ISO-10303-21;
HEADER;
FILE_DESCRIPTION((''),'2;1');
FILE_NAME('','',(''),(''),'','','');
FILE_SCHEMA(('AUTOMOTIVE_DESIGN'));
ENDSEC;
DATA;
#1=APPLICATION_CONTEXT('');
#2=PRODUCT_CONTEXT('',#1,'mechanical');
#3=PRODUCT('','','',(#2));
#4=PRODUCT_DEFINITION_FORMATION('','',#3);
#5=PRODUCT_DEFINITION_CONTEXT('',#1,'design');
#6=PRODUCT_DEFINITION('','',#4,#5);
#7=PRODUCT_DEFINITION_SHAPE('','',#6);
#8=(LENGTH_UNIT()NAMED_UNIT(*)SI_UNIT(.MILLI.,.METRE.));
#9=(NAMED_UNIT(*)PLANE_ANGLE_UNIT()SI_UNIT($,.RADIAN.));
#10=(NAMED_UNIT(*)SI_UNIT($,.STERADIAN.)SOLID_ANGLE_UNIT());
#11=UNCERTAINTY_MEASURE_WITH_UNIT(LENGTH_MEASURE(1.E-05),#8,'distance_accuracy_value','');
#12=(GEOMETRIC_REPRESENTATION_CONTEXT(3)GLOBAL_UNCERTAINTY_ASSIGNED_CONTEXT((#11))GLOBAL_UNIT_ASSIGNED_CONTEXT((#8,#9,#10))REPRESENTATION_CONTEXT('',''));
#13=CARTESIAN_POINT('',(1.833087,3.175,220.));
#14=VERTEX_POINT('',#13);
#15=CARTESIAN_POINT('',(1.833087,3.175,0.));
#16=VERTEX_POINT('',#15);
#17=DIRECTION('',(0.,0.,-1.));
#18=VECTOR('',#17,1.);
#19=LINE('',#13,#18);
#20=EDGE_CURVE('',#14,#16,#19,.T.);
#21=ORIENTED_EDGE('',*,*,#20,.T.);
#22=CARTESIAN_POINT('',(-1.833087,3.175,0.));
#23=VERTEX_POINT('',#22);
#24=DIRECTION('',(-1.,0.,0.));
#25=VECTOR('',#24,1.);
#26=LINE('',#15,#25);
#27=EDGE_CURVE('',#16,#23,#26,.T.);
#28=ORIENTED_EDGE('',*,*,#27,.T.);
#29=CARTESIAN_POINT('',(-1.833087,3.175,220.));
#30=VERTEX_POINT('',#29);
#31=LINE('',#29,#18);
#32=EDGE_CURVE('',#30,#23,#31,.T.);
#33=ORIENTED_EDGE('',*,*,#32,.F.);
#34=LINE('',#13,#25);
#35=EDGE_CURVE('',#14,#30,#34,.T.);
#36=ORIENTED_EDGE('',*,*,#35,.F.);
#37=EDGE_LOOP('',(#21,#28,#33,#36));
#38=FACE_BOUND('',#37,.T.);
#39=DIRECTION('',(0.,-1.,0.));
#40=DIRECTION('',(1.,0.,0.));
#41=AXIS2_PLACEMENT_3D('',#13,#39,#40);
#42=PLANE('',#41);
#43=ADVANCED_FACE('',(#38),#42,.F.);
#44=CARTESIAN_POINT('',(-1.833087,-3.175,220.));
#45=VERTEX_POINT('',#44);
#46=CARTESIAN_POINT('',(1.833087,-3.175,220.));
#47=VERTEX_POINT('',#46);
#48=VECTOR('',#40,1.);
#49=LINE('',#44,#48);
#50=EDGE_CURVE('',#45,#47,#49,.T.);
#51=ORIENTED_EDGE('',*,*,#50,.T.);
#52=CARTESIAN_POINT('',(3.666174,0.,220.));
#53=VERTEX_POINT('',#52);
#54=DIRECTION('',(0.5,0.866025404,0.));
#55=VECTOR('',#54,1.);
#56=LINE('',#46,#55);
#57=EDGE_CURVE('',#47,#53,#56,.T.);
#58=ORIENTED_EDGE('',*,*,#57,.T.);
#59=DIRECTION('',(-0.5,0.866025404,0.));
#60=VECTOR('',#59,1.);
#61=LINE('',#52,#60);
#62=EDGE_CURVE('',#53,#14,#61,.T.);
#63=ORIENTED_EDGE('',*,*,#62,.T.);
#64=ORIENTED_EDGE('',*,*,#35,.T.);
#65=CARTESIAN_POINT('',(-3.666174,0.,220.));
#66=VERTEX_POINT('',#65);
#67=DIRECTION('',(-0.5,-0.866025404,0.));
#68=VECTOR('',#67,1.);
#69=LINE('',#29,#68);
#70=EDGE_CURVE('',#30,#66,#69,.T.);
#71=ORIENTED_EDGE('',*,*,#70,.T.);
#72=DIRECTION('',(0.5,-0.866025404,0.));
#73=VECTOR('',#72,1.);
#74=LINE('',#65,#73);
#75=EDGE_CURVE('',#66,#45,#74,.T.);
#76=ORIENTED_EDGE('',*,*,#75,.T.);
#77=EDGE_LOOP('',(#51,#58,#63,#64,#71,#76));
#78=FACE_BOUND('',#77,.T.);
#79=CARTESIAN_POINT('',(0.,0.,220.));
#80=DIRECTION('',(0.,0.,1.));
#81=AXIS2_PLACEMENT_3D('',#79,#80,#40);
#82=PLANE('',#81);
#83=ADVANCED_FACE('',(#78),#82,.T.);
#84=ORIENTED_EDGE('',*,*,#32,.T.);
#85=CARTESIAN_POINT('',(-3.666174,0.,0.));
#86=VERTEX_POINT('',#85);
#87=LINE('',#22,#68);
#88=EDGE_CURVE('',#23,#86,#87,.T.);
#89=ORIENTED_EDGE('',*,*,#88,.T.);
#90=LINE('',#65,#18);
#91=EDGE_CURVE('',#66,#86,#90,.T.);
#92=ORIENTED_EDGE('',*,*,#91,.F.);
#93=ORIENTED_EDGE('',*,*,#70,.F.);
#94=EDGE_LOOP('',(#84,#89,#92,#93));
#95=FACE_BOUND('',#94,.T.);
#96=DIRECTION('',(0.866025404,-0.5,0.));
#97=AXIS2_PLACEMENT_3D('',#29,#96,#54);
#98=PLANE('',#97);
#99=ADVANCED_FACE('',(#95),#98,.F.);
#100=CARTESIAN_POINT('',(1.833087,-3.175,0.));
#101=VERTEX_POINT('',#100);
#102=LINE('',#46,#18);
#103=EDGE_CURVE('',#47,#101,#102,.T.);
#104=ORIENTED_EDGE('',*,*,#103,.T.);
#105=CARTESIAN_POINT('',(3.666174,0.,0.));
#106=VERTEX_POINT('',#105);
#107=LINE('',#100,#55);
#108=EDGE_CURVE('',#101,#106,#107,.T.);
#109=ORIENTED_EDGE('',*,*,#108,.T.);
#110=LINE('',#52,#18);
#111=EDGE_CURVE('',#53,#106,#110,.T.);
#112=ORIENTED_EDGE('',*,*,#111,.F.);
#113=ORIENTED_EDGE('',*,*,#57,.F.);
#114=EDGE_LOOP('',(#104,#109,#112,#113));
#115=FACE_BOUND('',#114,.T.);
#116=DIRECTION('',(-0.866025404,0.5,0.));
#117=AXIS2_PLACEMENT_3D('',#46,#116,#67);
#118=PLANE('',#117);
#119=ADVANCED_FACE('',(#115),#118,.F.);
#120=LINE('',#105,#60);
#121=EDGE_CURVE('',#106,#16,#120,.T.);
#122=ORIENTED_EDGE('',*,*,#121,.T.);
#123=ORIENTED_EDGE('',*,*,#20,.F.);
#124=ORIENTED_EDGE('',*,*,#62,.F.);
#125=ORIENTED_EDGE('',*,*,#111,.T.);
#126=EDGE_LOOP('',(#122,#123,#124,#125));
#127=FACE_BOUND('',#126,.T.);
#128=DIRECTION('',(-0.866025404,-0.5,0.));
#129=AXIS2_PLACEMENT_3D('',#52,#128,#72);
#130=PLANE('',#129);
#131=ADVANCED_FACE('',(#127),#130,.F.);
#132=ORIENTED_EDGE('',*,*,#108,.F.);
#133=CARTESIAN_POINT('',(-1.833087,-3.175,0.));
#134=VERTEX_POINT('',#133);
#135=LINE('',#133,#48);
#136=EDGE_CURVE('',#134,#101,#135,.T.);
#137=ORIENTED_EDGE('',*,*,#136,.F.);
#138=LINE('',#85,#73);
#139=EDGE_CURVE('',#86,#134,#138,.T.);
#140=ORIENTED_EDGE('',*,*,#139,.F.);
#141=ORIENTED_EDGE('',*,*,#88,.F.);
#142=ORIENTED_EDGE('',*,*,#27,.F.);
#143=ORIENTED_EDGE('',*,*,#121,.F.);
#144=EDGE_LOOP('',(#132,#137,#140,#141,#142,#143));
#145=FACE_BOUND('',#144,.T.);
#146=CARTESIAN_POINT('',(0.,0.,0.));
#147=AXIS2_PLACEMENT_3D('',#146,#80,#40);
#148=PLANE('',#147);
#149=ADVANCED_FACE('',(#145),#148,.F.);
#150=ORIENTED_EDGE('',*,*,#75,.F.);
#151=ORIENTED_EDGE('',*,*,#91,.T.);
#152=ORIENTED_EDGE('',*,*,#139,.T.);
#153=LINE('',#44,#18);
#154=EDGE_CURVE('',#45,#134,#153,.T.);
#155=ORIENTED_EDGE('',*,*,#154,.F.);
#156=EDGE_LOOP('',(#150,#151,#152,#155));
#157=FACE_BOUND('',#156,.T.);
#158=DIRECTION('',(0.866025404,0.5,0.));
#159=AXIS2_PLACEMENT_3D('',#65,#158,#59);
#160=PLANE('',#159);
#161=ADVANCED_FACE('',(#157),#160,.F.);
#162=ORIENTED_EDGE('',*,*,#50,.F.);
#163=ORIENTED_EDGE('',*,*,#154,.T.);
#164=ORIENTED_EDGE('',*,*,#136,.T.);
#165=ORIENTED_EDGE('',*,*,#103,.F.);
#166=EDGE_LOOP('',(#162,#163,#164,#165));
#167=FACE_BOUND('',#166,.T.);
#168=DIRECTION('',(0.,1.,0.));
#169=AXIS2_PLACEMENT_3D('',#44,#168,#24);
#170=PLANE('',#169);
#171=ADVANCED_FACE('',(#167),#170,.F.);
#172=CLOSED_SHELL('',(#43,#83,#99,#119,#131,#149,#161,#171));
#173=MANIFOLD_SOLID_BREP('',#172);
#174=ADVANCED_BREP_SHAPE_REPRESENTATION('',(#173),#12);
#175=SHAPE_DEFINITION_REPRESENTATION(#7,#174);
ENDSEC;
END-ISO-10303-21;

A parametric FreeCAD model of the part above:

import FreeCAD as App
import Part
import Sketcher
from FreeCAD import Vector
Q = App.Units.Quantity


def add_polygon(sketch, points):
    """Adds a closed chain of lines whose ends are joined by coincident constraints."""
    first, n = sketch.GeometryCount, len(points)
    for a, b in zip(points, points[1:] + points[:1]):
        sketch.addGeometry(Part.LineSegment(App.Vector(*a, 0), App.Vector(*b, 0)), False)
    for i in range(n):
        sketch.addConstraint(Sketcher.Constraint("Coincident", first + i, 2, first + (i + 1) % n, 1))

doc = App.newDocument("Part")
body = doc.addObject("PartDesign::Body", "Body")

# Sketch on XY plane
sketch1 = body.newObject("Sketcher::SketchObject", "Sketch")
sketch1.AttachmentSupport = (doc.getObject("XY_Plane"), [""])
sketch1.MapMode = "FlatFace"
add_polygon(sketch1, [(-3.7, 0), (-1.8, -3.2), (1.8, -3.2), (3.7, 0), (1.8, 3.2), (-1.8, 3.2)])  # lines 0-5
sketch1.addConstraint(Sketcher.Constraint("Horizontal", 1))
sketch1.addConstraint(Sketcher.Constraint("Horizontal", 4))
sketch1.addConstraint(Sketcher.Constraint("Symmetric", 0, 2, 3, 2, -1, 1))
sketch1.addConstraint(Sketcher.Constraint("Symmetric", 2, 2, 5, 2, -1, 1))
sketch1.addConstraint(Sketcher.Constraint("PointOnObject", 2, 2, -1))
sketch1.addConstraint(Sketcher.Constraint("Parallel", 2, 5))
sketch1.addConstraint(Sketcher.Constraint("Vertical", 1, 2, 3, 2))
sketch1.addConstraint(Sketcher.Constraint("Angle", 0, Q("-60 deg")))
sketch1.addConstraint(Sketcher.Constraint("DistanceY", 1, 2, 3, 2, Q("6.35 mm")))
sketch1.addConstraint(Sketcher.Constraint("DistanceX", 1, 1, 1, 2, Q("3.666174 mm")))
pad1 = body.newObject("PartDesign::Pad", "Pad")
pad1.Profile = sketch1
pad1.Length = 220

doc.recompute()
